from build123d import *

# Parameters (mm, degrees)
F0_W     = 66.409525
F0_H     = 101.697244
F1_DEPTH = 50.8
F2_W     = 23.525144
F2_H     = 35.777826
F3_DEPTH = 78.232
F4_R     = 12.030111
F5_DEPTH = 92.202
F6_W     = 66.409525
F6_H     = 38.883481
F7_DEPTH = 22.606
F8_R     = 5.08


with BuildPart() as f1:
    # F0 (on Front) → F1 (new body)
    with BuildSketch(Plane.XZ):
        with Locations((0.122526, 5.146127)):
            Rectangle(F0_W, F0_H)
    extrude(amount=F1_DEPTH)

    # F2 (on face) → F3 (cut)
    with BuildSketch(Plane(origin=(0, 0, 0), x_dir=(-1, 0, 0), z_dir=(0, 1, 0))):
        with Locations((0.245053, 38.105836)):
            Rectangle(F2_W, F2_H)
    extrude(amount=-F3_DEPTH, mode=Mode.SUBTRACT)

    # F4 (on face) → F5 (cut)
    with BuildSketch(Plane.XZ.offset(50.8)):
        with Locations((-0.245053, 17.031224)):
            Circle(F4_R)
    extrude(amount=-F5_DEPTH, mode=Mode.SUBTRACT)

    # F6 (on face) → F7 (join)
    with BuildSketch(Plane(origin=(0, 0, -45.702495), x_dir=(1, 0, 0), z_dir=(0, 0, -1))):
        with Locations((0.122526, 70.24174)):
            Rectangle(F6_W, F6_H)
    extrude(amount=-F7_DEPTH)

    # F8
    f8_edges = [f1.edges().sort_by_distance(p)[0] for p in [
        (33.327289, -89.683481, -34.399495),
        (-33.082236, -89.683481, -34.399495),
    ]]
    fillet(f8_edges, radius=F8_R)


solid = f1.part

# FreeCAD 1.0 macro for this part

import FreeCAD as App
import Part
import Sketcher
Q = App.Units.Quantity


def edges_at(feature, points):
    """Names of the edges that pass closest to the given points."""
    edges = feature.Shape.Edges
    near = lambda p: min(range(len(edges)), key=lambda i: edges[i].distToShape(Part.Vertex(*p))[0])
    return sorted({f"Edge{near(p) + 1}" for p in points})

doc = App.newDocument("Part")
body = doc.addObject("PartDesign::Body", "Body")

# Sketch on XZ plane
sketch1 = doc.addObject("Sketcher::SketchObject", "Sketch")
body.addObject(sketch1)
sketch1.AttachmentSupport = (doc.XZ_Plane, [""])
sketch1.MapMode = "FlatFace"
sketch1.addGeometry(Part.LineSegment(App.Vector(-33, 56, 0), App.Vector(-33, -46, 0)), False)
sketch1.addGeometry(Part.LineSegment(App.Vector(-33, -46, 0), App.Vector(33, -46, 0)), False)
sketch1.addGeometry(Part.LineSegment(App.Vector(33, -46, 0), App.Vector(33, 56, 0)), False)
sketch1.addGeometry(Part.LineSegment(App.Vector(33, 56, 0), App.Vector(-33, 56, 0)), False)
sketch1.addConstraint(Sketcher.Constraint("Coincident", 0, 2, 1, 1))
sketch1.addConstraint(Sketcher.Constraint("Coincident", 1, 2, 2, 1))
sketch1.addConstraint(Sketcher.Constraint("Coincident", 2, 2, 3, 1))
sketch1.addConstraint(Sketcher.Constraint("Coincident", 3, 2, 0, 1))
sketch1.addConstraint(Sketcher.Constraint("Vertical", 0))
sketch1.addConstraint(Sketcher.Constraint("Horizontal", 1))
sketch1.addConstraint(Sketcher.Constraint("Vertical", 2))
sketch1.addConstraint(Sketcher.Constraint("Horizontal", 3))
sketch1.addConstraint(Sketcher.Constraint("DistanceX", 1, 1, 1, 2, 66.409525))
sketch1.addConstraint(Sketcher.Constraint("DistanceY", 0, 2, 0, 1, 101.697244))
sketch1.addConstraint(Sketcher.Constraint("DistanceX", -1, 1, 1, 2, 33.327289))
sketch1.addConstraint(Sketcher.Constraint("DistanceY", -1, 1, 2, 2, 55.994749))
pad1 = doc.addObject("PartDesign::Pad", "Pad")
body.addObject(pad1)
pad1.Profile = sketch1
pad1.Length = Q("2 in")

# Sketch on XZ plane
sketch2 = doc.addObject("Sketcher::SketchObject", "Sketch001")
body.addObject(sketch2)
sketch2.AttachmentSupport = (doc.XZ_Plane, [""])
sketch2.MapMode = "FlatFace"
sketch2.addGeometry(Part.LineSegment(App.Vector(12, 56, 0), App.Vector(12, 20, 0)), False)
sketch2.addGeometry(Part.LineSegment(App.Vector(12, 20, 0), App.Vector(-12, 20, 0)), False)
sketch2.addGeometry(Part.LineSegment(App.Vector(-12, 20, 0), App.Vector(-12, 56, 0)), False)
sketch2.addGeometry(Part.LineSegment(App.Vector(-12, 56, 0), App.Vector(12, 56, 0)), False)
sketch2.addConstraint(Sketcher.Constraint("Coincident", 0, 2, 1, 1))
sketch2.addConstraint(Sketcher.Constraint("Coincident", 1, 2, 2, 1))
sketch2.addConstraint(Sketcher.Constraint("Coincident", 2, 2, 3, 1))
sketch2.addConstraint(Sketcher.Constraint("Coincident", 3, 2, 0, 1))
sketch2.addConstraint(Sketcher.Constraint("Vertical", 0))
sketch2.addConstraint(Sketcher.Constraint("Horizontal", 1))
sketch2.addConstraint(Sketcher.Constraint("Vertical", 2))
sketch2.addConstraint(Sketcher.Constraint("Horizontal", 3))
sketch2.addConstraint(Sketcher.Constraint("DistanceX", 1, 2, 1, 1, 23.525144))
sketch2.addConstraint(Sketcher.Constraint("DistanceY", 0, 2, 0, 1, 35.777826))
sketch2.addConstraint(Sketcher.Constraint("DistanceX", -1, 1, 0, 2, 11.517519))
sketch2.addConstraint(Sketcher.Constraint("DistanceY", -1, 1, 2, 2, 55.994749))
pocket1 = doc.addObject("PartDesign::Pocket", "Pocket")
body.addObject(pocket1)
pocket1.Profile = sketch2
pocket1.Length = Q("3.08 in")
pocket1.Reversed = True

# Sketch on XZ plane
sketch3 = doc.addObject("Sketcher::SketchObject", "Sketch002")
body.addObject(sketch3)
sketch3.AttachmentSupport = (doc.XZ_Plane, [""])
sketch3.MapMode = "FlatFace"
sketch3.AttachmentOffset = App.Placement(App.Vector(0, 0, 2 * 25.4), App.Rotation())
sketch3.addGeometry(Part.Circle(App.Vector(0, 17, 0), App.Vector(0, 0, 1), 12), False)
sketch3.addConstraint(Sketcher.Constraint("Diameter", 0, 24.060222))
sketch3.addConstraint(Sketcher.Constraint("DistanceX", 0, 3, -1, 1, 0.245053))
sketch3.addConstraint(Sketcher.Constraint("DistanceY", -1, 1, 0, 3, 17.031224))
pocket2 = doc.addObject("PartDesign::Pocket", "Pocket001")
body.addObject(pocket2)
pocket2.Profile = sketch3
pocket2.Length = Q("3.63 in")

# Sketch on XY plane
sketch4 = doc.addObject("Sketcher::SketchObject", "Sketch003")
body.addObject(sketch4)
sketch4.AttachmentSupport = (doc.XY_Plane, [""])
sketch4.MapMode = "FlatFace"
sketch4.AttachmentOffset = App.Placement(App.Vector(0, 0, -45.702495), App.Rotation())
sketch4.addGeometry(Part.LineSegment(App.Vector(-33, -90, 0), App.Vector(-33, -51, 0)), False)
sketch4.addGeometry(Part.LineSegment(App.Vector(-33, -51, 0), App.Vector(33, -51, 0)), False)
sketch4.addGeometry(Part.LineSegment(App.Vector(33, -51, 0), App.Vector(33, -90, 0)), False)
sketch4.addGeometry(Part.LineSegment(App.Vector(33, -90, 0), App.Vector(-33, -90, 0)), False)
sketch4.addConstraint(Sketcher.Constraint("Coincident", 0, 2, 1, 1))
sketch4.addConstraint(Sketcher.Constraint("Coincident", 1, 2, 2, 1))
sketch4.addConstraint(Sketcher.Constraint("Coincident", 2, 2, 3, 1))
sketch4.addConstraint(Sketcher.Constraint("Coincident", 3, 2, 0, 1))
sketch4.addConstraint(Sketcher.Constraint("Vertical", 0))
sketch4.addConstraint(Sketcher.Constraint("Horizontal", 1))
sketch4.addConstraint(Sketcher.Constraint("Vertical", 2))
sketch4.addConstraint(Sketcher.Constraint("Horizontal", 3))
sketch4.addConstraint(Sketcher.Constraint("DistanceY", 0, 2, -1, 1, Q("2 in")))
sketch4.addConstraint(Sketcher.Constraint("DistanceY", 0, 1, 0, 2, 38.883481))
sketch4.addConstraint(Sketcher.Constraint("DistanceX", 1, 1, 1, 2, 66.409525))
sketch4.addConstraint(Sketcher.Constraint("DistanceX", -1, 1, 1, 2, 33.327289))
pad2 = doc.addObject("PartDesign::Pad", "Pad001")
body.addObject(pad2)
pad2.Profile = sketch4
pad2.Length = Q("0.89 in")
doc.recompute()

fillet = doc.addObject("PartDesign::Fillet", "Fillet")
body.addObject(fillet)
fillet.Base = (pad2, edges_at(pad2, [(33.327, -89.683, -34.399), (-33.082, -89.683, -34.399)]))
fillet.Radius = Q("0.2 in")

doc.recompute()
